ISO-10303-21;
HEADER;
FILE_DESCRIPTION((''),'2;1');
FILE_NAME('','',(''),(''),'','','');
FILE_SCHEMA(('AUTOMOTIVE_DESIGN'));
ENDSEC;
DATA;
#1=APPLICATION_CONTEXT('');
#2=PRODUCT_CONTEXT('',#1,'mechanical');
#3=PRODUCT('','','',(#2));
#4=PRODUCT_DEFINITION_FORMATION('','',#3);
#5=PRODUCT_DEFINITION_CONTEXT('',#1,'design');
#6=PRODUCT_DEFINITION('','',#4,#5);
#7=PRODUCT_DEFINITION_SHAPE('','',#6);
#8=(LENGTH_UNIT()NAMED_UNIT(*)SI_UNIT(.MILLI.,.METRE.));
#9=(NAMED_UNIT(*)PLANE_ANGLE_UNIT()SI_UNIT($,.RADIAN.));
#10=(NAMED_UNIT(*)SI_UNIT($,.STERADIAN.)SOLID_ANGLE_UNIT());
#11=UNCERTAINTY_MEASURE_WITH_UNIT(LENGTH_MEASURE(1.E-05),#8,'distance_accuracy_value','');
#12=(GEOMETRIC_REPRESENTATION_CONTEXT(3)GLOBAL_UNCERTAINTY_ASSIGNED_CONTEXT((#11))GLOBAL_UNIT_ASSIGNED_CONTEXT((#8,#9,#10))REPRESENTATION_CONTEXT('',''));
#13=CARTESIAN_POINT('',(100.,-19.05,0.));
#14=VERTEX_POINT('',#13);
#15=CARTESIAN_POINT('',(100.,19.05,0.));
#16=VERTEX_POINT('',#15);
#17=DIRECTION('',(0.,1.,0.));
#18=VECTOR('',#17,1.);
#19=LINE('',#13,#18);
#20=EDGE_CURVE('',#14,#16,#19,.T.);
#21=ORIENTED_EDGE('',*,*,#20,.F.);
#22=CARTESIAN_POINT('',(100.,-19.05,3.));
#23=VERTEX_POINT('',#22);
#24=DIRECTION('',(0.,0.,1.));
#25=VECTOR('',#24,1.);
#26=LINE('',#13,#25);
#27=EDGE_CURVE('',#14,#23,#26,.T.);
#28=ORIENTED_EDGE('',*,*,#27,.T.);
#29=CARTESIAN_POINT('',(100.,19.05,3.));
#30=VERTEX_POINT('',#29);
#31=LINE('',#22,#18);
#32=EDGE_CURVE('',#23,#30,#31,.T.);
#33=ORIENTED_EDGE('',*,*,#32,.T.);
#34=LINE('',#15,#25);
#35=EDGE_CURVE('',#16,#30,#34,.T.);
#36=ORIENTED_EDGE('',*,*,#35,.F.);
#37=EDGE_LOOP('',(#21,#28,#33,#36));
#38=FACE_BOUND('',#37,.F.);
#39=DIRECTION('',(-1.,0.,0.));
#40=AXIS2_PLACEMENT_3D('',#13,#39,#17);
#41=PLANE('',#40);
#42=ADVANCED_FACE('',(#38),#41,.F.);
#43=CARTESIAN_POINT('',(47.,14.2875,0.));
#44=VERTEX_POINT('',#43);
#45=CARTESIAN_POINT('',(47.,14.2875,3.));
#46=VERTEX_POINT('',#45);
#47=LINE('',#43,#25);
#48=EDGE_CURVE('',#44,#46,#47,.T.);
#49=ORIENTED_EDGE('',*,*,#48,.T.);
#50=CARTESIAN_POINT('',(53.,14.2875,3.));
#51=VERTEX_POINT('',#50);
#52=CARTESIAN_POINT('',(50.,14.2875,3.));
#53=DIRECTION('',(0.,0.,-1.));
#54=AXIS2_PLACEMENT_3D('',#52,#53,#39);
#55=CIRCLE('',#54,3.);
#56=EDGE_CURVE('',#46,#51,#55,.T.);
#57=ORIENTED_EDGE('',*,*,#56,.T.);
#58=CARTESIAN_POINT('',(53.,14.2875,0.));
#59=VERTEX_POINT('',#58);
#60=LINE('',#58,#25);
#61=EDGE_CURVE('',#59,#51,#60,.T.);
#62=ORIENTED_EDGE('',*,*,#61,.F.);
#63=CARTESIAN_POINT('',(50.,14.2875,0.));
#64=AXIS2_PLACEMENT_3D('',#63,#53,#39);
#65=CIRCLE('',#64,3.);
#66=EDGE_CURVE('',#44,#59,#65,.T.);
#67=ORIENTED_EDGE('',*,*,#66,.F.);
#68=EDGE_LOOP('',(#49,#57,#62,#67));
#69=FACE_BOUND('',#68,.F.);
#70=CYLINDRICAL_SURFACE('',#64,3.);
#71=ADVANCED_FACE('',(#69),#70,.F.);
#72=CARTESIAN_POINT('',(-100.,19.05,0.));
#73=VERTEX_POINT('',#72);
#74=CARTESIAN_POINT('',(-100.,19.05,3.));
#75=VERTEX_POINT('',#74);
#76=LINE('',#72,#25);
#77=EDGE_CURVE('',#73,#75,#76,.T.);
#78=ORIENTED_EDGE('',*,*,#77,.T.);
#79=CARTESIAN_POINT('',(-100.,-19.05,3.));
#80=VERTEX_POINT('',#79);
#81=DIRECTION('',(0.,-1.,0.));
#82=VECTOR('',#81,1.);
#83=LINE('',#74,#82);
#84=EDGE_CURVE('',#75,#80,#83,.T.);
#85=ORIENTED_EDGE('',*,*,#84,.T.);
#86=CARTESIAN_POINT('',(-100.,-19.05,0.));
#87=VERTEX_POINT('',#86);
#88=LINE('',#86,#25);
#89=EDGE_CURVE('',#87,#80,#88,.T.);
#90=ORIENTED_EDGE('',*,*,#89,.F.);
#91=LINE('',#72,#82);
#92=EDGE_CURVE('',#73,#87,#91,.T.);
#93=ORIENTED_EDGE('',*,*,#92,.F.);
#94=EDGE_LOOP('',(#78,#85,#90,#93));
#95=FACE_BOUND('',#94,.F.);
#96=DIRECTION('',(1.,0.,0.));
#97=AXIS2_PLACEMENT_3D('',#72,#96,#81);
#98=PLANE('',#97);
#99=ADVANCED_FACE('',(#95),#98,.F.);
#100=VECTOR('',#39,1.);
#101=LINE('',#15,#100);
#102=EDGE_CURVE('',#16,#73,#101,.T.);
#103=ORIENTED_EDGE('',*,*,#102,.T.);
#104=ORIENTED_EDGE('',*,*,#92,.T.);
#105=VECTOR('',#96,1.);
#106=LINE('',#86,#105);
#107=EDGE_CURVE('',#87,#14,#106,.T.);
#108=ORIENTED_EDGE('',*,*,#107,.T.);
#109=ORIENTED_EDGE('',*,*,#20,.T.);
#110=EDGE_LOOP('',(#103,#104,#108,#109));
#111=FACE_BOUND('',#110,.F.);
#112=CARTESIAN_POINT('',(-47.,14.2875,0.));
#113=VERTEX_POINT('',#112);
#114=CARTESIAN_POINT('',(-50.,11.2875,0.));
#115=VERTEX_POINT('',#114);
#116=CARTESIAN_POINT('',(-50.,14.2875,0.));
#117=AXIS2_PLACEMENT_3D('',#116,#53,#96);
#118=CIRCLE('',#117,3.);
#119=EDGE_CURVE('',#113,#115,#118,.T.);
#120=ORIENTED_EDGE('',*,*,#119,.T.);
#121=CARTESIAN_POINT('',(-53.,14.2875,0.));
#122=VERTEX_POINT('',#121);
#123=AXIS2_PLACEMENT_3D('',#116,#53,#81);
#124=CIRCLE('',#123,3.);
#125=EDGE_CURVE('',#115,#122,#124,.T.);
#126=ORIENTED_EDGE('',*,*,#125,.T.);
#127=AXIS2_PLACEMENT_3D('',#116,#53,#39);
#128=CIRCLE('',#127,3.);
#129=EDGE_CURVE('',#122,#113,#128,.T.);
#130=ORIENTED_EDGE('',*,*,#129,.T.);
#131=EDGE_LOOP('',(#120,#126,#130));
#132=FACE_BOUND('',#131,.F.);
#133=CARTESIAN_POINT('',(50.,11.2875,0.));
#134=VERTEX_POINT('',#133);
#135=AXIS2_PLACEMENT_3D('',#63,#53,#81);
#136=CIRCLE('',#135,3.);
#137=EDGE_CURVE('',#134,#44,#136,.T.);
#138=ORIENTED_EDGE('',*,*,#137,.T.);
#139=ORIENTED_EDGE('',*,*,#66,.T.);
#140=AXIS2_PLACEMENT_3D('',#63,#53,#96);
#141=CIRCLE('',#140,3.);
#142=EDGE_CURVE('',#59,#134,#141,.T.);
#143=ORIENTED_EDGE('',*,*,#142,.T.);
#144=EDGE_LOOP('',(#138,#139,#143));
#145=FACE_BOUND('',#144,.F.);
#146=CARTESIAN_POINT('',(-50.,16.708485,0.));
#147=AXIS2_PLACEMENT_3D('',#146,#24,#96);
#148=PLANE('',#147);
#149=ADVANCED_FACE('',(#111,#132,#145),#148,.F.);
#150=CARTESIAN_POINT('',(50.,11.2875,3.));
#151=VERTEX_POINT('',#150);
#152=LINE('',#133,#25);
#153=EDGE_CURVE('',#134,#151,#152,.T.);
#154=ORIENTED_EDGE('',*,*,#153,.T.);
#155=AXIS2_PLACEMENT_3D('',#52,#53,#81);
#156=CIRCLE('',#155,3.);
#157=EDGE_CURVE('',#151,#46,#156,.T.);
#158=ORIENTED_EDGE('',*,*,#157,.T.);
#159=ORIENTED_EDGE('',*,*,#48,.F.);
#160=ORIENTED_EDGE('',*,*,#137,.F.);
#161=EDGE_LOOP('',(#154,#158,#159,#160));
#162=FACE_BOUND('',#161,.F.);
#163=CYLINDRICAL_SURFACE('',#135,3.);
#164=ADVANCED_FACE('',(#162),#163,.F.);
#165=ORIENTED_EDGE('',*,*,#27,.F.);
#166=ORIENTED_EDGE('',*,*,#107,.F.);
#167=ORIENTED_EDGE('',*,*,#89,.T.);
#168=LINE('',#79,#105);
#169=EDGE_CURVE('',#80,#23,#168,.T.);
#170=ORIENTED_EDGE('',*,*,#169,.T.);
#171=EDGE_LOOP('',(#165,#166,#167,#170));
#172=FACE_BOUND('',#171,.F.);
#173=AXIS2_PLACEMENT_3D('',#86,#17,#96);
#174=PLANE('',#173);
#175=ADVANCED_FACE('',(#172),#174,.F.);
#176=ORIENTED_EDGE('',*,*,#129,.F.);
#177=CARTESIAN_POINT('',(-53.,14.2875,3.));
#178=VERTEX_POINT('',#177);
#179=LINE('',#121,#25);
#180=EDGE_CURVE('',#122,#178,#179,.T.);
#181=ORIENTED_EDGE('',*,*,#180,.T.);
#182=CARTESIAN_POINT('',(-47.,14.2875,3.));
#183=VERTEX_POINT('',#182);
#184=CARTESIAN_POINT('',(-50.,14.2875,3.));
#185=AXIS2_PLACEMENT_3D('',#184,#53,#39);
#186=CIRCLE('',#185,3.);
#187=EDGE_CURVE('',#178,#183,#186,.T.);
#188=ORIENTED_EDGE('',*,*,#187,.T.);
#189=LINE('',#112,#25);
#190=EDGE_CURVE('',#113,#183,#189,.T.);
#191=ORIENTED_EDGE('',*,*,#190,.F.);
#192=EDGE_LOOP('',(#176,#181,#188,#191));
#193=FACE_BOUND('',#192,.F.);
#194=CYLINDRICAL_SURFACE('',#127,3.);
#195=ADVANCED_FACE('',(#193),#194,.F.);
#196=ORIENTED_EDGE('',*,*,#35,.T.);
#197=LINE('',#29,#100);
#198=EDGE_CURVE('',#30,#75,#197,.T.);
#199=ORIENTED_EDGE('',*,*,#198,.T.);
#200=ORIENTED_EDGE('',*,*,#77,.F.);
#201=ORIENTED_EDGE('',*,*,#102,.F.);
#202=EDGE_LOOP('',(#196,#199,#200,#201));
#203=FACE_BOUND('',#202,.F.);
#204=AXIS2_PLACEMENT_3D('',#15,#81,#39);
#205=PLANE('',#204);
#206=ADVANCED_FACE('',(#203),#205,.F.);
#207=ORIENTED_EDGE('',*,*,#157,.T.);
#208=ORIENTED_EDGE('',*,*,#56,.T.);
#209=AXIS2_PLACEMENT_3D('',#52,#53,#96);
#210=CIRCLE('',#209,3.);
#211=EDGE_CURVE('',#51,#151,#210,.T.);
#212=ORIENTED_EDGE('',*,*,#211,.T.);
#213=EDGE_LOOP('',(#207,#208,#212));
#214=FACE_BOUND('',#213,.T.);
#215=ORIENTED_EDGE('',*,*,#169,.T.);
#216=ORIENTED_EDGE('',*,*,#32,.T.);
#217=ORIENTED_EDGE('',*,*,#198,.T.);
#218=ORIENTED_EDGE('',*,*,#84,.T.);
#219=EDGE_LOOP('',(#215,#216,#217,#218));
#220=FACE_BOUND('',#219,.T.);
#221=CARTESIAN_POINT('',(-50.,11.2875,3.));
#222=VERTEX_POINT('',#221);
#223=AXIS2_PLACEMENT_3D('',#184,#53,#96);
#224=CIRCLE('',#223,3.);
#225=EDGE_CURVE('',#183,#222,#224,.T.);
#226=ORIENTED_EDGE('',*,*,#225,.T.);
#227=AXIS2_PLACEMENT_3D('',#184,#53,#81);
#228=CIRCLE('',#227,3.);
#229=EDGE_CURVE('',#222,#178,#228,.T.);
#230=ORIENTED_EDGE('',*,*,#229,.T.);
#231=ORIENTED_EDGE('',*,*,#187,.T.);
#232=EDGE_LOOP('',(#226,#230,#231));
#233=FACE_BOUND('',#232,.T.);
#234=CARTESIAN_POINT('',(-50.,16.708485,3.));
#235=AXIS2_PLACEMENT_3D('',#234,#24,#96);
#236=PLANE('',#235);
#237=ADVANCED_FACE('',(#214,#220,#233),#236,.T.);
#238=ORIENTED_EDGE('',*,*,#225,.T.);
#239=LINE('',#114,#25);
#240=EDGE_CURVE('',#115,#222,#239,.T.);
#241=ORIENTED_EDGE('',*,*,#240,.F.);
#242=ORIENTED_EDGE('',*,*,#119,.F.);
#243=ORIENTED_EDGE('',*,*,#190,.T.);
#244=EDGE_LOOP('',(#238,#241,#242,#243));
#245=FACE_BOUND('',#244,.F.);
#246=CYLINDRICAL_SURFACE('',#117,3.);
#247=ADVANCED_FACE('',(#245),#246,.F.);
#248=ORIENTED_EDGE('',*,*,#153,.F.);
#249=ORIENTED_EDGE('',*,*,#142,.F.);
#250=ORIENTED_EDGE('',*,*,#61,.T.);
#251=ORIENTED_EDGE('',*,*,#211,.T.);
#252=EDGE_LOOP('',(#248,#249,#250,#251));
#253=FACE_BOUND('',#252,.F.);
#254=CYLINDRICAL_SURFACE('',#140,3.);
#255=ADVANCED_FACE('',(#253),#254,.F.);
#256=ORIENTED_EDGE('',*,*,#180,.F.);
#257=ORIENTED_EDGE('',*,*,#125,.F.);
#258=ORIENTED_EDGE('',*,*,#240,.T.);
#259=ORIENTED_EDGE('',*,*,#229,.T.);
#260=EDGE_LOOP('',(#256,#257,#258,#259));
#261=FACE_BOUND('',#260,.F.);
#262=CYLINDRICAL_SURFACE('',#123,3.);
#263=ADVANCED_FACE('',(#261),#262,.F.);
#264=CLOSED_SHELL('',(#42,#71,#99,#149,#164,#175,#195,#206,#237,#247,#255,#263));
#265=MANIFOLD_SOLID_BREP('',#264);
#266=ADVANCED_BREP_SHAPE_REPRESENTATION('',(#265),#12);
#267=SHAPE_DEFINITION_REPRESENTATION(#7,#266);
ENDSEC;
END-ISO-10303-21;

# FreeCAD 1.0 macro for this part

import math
import FreeCAD as App
import Part
import Sketcher


def add_polygon(sketch, points):
    """Adds a closed chain of lines whose ends are joined by coincident constraints."""
    first, n = sketch.GeometryCount, len(points)
    for a, b in zip(points, points[1:] + points[:1]):
        sketch.addGeometry(Part.LineSegment(App.Vector(*a, 0), App.Vector(*b, 0)), False)
    for i in range(n):
        sketch.addConstraint(Sketcher.Constraint("Coincident", first + i, 2, first + (i + 1) % n, 1))

doc = App.newDocument("Part")
body = doc.addObject("PartDesign::Body", "Body")

# Sketch on XY plane
sketch1 = body.newObject("Sketcher::SketchObject", "Sketch")
sketch1.AttachmentSupport = (doc.getObject("XY_Plane"), [""])
sketch1.MapMode = "FlatFace"
add_polygon(sketch1, [(-100, 19.1), (-100, -19.1), (100, -19.1), (100, 19.1)])  # lines 0-3
sketch1.addGeometry(Part.ArcOfCircle(Part.Circle(App.Vector(-50, 14.3, 0), App.Vector(0, 0, 1), 3), math.radians(0), math.radians(180)), False)  # 4
sketch1.addGeometry(Part.ArcOfCircle(Part.Circle(App.Vector(-50, 14.3, 0), App.Vector(0, 0, 1), 3), math.radians(-90), math.radians(0)), False)  # 5
sketch1.addGeometry(Part.ArcOfCircle(Part.Circle(App.Vector(-50, 14.3, 0), App.Vector(0, 0, 1), 3), math.radians(180), math.radians(270)), False)  # 6
sketch1.addGeometry(Part.ArcOfCircle(Part.Circle(App.Vector(50, 14.3, 0), App.Vector(0, 0, 1), 3), math.radians(0), math.radians(180)), False)  # 7
sketch1.addGeometry(Part.ArcOfCircle(Part.Circle(App.Vector(50, 14.3, 0), App.Vector(0, 0, 1), 3), math.radians(-90), math.radians(0)), False)  # 8
sketch1.addGeometry(Part.ArcOfCircle(Part.Circle(App.Vector(50, 14.3, 0), App.Vector(0, 0, 1), 3), math.radians(180), math.radians(270)), False)  # 9
sketch1.addConstraint([
    Sketcher.Constraint("Tangent", 4, 1, 5, 2),
    Sketcher.Constraint("Tangent", 5, 1, 6, 2),
    Sketcher.Constraint("Tangent", 6, 1, 4, 2),
    Sketcher.Constraint("Tangent", 7, 1, 8, 2),
    Sketcher.Constraint("Tangent", 8, 1, 9, 2),
    Sketcher.Constraint("Tangent", 9, 1, 7, 2),
    Sketcher.Constraint("Vertical", 0),
    Sketcher.Constraint("Horizontal", 1),
    Sketcher.Constraint("Vertical", 2),
    Sketcher.Constraint("Horizontal", 3),
    Sketcher.Constraint("Equal", 6, 7),
    Sketcher.Constraint("Symmetric", 0, 2, 2, 2, -1, 1),
    Sketcher.Constraint("Symmetric", 4, 3, 7, 3, -2),
    Sketcher.Constraint("Horizontal", 9, 3, 4, 1),
    Sketcher.Constraint("Horizontal", 4, 1, 6, 1),
    Sketcher.Constraint("Horizontal", 6, 1, 7, 1),
    Sketcher.Constraint("Horizontal", 7, 1, 9, 1),
    Sketcher.Constraint("Vertical", 6, 3, 5, 1),
    Sketcher.Constraint("Vertical", 9, 3, 8, 1),
    Sketcher.Constraint("Radius", 4, 3.0),
    Sketcher.Constraint("DistanceX", 1, 1, 1, 2, 200.0),
    Sketcher.Constraint("DistanceY", 0, 2, 0, 1, 38.1),
    Sketcher.Constraint("DistanceX", 4, 3, -1, 1, 50.0),
    Sketcher.Constraint("DistanceY", -1, 1, 4, 3, 14.2875),
])
pad1 = body.newObject("PartDesign::Pad", "Pad")
pad1.Profile = sketch1
pad1.Length = 3

doc.recompute()
